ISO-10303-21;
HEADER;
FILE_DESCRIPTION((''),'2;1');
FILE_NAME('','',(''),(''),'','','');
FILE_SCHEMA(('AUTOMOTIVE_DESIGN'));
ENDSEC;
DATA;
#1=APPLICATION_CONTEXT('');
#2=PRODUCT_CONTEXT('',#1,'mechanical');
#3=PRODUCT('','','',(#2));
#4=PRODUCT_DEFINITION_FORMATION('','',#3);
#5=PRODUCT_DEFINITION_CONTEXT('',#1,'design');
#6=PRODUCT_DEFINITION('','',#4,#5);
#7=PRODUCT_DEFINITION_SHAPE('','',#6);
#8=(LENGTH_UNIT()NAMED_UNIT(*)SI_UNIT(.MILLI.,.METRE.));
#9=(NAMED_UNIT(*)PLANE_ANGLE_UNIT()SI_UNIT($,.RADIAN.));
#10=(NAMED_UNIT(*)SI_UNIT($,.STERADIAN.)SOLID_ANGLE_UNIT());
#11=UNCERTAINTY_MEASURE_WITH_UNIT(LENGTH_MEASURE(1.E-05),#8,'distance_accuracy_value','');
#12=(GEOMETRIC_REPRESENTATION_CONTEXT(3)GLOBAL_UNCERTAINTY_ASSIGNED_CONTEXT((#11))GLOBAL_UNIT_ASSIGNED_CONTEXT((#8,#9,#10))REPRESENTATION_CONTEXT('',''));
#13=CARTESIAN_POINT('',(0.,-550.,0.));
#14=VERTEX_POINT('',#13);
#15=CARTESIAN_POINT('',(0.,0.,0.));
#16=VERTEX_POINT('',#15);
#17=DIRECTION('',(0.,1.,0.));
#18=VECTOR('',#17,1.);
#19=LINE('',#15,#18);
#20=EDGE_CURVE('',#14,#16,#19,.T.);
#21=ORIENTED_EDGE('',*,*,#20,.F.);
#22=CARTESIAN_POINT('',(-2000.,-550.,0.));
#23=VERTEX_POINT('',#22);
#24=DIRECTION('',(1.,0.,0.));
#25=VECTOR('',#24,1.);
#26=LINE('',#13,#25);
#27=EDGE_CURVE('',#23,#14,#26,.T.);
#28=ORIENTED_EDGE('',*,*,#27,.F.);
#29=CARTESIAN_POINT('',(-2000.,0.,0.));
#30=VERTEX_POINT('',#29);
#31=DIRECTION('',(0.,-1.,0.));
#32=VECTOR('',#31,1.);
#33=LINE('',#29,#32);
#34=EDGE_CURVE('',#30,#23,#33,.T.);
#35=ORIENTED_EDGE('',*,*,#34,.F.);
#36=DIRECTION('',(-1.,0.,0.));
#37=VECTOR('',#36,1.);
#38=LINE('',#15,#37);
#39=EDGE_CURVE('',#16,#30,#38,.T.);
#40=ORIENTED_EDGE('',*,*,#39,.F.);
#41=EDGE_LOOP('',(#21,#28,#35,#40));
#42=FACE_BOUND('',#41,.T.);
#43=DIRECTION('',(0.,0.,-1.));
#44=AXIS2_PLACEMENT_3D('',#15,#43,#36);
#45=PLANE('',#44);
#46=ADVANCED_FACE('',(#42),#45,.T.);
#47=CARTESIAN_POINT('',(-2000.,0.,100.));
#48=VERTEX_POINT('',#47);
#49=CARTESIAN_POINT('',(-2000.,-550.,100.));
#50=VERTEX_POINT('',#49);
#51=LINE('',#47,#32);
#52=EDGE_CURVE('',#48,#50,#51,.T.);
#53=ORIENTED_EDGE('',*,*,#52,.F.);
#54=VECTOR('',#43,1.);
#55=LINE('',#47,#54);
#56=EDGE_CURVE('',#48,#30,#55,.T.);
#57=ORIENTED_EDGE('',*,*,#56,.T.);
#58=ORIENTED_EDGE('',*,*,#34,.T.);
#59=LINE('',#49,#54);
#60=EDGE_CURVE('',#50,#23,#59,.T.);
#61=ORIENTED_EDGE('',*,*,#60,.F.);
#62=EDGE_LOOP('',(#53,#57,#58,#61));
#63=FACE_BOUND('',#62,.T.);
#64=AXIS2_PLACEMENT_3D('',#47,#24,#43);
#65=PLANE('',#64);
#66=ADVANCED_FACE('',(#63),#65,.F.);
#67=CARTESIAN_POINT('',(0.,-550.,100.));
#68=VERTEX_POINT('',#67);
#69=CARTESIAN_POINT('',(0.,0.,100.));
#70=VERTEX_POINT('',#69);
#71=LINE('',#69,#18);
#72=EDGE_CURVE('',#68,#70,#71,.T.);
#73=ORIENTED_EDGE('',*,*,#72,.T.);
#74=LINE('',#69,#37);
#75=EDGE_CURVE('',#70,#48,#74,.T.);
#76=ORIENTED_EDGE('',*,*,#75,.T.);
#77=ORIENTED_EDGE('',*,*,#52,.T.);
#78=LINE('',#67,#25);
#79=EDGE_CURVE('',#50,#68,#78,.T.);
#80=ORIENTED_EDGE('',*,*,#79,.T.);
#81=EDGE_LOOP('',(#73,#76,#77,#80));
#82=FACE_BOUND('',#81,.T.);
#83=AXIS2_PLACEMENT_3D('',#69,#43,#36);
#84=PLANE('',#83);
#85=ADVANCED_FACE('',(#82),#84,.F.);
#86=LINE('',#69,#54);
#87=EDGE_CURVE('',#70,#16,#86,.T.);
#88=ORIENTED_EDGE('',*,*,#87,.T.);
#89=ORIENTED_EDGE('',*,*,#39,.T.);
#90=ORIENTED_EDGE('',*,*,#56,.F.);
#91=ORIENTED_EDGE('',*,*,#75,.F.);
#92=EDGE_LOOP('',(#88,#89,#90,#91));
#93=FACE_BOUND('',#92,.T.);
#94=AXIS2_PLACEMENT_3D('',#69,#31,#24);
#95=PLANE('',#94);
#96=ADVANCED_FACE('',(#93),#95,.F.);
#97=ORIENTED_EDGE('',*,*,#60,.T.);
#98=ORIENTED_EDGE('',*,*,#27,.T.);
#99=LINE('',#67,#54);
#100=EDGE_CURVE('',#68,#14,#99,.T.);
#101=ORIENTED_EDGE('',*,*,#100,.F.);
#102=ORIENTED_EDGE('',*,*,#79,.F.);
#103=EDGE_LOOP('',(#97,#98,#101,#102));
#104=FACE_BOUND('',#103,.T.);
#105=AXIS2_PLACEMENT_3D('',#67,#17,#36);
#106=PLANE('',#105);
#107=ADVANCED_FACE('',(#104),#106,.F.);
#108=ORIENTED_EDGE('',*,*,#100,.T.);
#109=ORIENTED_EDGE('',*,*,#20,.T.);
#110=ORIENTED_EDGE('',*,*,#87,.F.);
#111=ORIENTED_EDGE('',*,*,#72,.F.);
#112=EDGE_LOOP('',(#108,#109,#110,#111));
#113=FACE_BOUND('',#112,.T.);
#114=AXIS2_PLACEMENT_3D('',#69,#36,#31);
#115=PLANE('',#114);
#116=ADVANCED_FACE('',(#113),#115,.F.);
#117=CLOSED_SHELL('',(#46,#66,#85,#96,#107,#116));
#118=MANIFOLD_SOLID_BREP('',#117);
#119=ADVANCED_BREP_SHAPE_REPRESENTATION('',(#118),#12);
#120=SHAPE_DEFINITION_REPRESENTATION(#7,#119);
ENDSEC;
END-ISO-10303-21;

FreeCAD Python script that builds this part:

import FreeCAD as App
import Part
import Sketcher

V = App.Vector
Q = App.Units.Quantity


def add_polygon(sketch, points):
    """Adds a closed chain of lines whose ends are joined by coincident constraints."""
    first, n = sketch.GeometryCount, len(points)
    for a, b in zip(points, points[1:] + points[:1]):
        sketch.addGeometry(Part.LineSegment(App.Vector(*a, 0), App.Vector(*b, 0)), False)
    for i in range(n):
        sketch.addConstraint(Sketcher.Constraint("Coincident", first + i, 2, first + (i + 1) % n, 1))

doc = App.newDocument("Part")
body = doc.addObject("PartDesign::Body", "Body")

sketch1 = doc.addObject("Sketcher::SketchObject", "Sketch")
body.addObject(sketch1)
sketch1.AttachmentSupport = (doc.XY_Plane, [""])
sketch1.MapMode = "FlatFace"
add_polygon(sketch1, [(-2000, 0), (-2000, -550), (0, -550), (0, 0)])
sketch1.addConstraint(Sketcher.Constraint("Vertical", 0))
sketch1.addConstraint(Sketcher.Constraint("Horizontal", 1))
sketch1.addConstraint(Sketcher.Constraint("Vertical", 2))
sketch1.addConstraint(Sketcher.Constraint("Horizontal", 3))
sketch1.addConstraint(Sketcher.Constraint("Coincident", 2, 2, -1, 1))
sketch1.addConstraint(Sketcher.Constraint("DistanceX", 1, 1, 1, 2, Q("2000 mm")))
sketch1.addConstraint(Sketcher.Constraint("DistanceY", 0, 2, 0, 1, Q("550 mm")))
pad1 = doc.addObject("PartDesign::Pad", "Pad")
body.addObject(pad1)
pad1.Profile = sketch1
pad1.Length = 100

doc.recompute()
